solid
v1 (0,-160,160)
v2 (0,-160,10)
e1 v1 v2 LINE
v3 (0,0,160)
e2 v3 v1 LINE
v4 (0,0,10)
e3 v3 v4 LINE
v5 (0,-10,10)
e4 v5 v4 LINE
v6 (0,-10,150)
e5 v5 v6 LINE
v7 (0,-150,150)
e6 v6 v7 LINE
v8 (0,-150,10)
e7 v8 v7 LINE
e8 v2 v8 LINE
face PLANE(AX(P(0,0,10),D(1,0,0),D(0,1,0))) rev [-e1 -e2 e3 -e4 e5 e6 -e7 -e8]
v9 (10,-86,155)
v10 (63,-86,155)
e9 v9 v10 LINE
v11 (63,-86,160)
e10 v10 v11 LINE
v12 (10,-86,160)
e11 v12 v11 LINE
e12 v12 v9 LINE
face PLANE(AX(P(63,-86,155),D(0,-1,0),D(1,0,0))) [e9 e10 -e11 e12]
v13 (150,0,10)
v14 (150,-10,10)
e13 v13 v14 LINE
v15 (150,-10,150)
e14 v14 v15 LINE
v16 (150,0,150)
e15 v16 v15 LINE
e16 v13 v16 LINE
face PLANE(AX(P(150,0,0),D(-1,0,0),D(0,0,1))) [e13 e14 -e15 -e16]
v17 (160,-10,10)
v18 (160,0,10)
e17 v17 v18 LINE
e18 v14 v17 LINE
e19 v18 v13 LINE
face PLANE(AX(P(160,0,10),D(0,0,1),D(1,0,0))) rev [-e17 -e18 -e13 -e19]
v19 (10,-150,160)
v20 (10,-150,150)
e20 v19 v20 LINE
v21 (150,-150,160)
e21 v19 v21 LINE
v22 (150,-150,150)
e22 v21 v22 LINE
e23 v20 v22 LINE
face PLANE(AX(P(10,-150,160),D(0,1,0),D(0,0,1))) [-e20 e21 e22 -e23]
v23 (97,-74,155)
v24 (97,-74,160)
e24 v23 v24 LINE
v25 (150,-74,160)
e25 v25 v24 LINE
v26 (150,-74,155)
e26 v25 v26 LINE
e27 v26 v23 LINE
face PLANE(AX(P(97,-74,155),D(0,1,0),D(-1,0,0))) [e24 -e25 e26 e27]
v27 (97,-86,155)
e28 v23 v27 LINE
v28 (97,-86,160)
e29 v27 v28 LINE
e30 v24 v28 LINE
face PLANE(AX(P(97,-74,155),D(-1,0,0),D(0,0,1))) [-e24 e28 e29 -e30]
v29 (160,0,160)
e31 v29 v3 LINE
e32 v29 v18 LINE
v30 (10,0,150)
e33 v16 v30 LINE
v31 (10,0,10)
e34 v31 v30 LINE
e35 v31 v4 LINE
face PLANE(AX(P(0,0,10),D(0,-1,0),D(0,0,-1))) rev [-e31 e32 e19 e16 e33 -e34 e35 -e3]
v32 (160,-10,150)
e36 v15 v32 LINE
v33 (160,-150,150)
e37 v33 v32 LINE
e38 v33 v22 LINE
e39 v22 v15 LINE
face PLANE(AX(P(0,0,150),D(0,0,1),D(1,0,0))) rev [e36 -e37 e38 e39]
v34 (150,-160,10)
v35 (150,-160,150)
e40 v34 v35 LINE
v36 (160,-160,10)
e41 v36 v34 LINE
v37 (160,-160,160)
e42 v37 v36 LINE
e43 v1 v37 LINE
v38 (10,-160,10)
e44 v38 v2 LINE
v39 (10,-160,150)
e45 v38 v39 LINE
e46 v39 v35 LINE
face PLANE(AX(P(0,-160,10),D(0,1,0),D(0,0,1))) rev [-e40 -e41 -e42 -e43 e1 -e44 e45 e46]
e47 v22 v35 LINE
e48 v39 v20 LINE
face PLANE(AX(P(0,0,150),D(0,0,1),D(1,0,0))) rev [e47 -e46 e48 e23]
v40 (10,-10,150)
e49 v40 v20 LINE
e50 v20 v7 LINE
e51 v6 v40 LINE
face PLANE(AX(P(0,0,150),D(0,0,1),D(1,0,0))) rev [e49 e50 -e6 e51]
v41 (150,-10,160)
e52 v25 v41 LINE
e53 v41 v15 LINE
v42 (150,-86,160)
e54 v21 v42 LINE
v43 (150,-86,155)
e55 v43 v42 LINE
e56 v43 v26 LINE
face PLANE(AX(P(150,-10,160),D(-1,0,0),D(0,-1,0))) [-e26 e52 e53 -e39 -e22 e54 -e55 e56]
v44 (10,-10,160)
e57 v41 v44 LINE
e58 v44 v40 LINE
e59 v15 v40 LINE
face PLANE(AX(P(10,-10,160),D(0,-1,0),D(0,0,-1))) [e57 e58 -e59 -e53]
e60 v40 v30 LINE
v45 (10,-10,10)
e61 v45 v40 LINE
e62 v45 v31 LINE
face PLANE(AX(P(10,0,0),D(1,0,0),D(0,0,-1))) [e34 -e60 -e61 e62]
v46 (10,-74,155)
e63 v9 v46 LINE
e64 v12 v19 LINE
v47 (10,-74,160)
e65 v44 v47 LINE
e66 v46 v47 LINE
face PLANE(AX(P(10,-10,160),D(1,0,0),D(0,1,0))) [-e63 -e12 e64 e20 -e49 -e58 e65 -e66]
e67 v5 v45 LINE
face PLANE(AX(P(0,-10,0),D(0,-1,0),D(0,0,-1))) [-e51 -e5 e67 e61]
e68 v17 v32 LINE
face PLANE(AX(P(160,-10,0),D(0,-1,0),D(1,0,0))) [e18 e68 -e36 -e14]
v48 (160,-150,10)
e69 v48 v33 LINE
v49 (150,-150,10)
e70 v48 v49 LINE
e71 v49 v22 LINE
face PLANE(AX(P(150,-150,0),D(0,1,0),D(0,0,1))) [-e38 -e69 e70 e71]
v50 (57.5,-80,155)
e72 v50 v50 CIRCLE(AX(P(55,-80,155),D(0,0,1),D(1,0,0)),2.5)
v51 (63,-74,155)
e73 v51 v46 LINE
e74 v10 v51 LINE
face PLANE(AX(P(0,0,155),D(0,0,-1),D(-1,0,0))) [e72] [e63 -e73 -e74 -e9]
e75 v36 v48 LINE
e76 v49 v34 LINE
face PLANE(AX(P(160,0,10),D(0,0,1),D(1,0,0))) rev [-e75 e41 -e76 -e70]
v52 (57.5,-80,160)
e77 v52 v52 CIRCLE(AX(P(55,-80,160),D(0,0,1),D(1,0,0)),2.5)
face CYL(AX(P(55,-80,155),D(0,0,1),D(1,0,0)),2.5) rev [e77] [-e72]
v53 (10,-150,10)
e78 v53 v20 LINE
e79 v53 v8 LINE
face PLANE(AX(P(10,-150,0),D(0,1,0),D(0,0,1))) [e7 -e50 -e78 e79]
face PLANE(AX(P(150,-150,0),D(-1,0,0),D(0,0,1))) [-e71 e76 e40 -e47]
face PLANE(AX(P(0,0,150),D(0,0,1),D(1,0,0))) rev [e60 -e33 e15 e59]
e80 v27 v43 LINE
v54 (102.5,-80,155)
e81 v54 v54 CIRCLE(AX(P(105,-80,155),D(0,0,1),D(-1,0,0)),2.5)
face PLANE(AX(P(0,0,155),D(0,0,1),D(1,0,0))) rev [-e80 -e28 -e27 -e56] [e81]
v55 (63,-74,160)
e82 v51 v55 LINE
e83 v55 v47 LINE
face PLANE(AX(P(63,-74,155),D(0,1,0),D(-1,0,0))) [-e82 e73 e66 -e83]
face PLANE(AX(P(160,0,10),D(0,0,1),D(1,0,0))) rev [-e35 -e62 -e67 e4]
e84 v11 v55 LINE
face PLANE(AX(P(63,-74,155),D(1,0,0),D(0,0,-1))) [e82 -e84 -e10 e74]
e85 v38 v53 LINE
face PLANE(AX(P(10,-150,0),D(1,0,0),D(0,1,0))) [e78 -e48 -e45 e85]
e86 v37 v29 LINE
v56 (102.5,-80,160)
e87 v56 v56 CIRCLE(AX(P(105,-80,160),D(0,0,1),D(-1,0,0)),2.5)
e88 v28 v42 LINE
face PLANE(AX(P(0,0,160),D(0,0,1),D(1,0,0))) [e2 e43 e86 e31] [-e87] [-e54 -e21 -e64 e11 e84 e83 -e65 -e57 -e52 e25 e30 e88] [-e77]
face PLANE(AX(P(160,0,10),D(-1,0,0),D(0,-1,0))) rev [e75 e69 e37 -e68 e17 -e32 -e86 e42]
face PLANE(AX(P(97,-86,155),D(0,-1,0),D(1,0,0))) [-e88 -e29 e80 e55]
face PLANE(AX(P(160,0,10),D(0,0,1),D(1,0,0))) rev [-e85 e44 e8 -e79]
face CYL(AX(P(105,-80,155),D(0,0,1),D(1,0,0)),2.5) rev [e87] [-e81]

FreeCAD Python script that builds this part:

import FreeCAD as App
import Part
import Sketcher
Q = App.Units.Quantity

doc = App.newDocument("Part")
body = doc.addObject("PartDesign::Body", "Body")

# Sketch on XY plane
sketch1 = doc.addObject("Sketcher::SketchObject", "Sketch")
body.addObject(sketch1)
sketch1.AttachmentSupport = (doc.XY_Plane, [""])
sketch1.MapMode = "FlatFace"
sketch1.addGeometry(Part.LineSegment(App.Vector(0, 0, 0), App.Vector(0, -160, 0)), False)
sketch1.addGeometry(Part.LineSegment(App.Vector(0, -160, 0), App.Vector(160, -160, 0)), False)
sketch1.addGeometry(Part.LineSegment(App.Vector(160, -160, 0), App.Vector(160, 0, 0)), False)
sketch1.addGeometry(Part.LineSegment(App.Vector(160, 0, 0), App.Vector(0, 0, 0)), False)
sketch1.addGeometry(Part.LineSegment(App.Vector(150, -150, 0), App.Vector(10, -150, 0)), False)
sketch1.addGeometry(Part.LineSegment(App.Vector(10, -150, 0), App.Vector(10, -10, 0)), False)
sketch1.addGeometry(Part.LineSegment(App.Vector(10, -10, 0), App.Vector(150, -10, 0)), False)
sketch1.addGeometry(Part.LineSegment(App.Vector(150, -10, 0), App.Vector(150, -150, 0)), False)
sketch1.addConstraint(Sketcher.Constraint("Coincident", 0, 2, 1, 1))
sketch1.addConstraint(Sketcher.Constraint("Coincident", 1, 2, 2, 1))
sketch1.addConstraint(Sketcher.Constraint("Coincident", 2, 2, 3, 1))
sketch1.addConstraint(Sketcher.Constraint("Coincident", 3, 2, 0, 1))
sketch1.addConstraint(Sketcher.Constraint("Coincident", 4, 2, 5, 1))
sketch1.addConstraint(Sketcher.Constraint("Coincident", 5, 2, 6, 1))
sketch1.addConstraint(Sketcher.Constraint("Coincident", 6, 2, 7, 1))
sketch1.addConstraint(Sketcher.Constraint("Coincident", 7, 2, 4, 1))
sketch1.addConstraint(Sketcher.Constraint("Vertical", 0))
sketch1.addConstraint(Sketcher.Constraint("Horizontal", 1))
sketch1.addConstraint(Sketcher.Constraint("Vertical", 2))
sketch1.addConstraint(Sketcher.Constraint("Horizontal", 3))
sketch1.addConstraint(Sketcher.Constraint("Horizontal", 4))
sketch1.addConstraint(Sketcher.Constraint("Vertical", 5))
sketch1.addConstraint(Sketcher.Constraint("Horizontal", 6))
sketch1.addConstraint(Sketcher.Constraint("Vertical", 7))
sketch1.addConstraint(Sketcher.Constraint("Coincident", 3, 2, -1, 1))
sketch1.addConstraint(Sketcher.Constraint("Equal", 3, 0))
sketch1.addConstraint(Sketcher.Constraint("Equal", 6, 5))
sketch1.addConstraint(Sketcher.Constraint("DistanceX", 1, 1, 1, 2, Q("160 mm")))
sketch1.addConstraint(Sketcher.Constraint("DistanceX", 4, 2, 4, 1, Q("140 mm")))
sketch1.addConstraint(Sketcher.Constraint("DistanceX", -1, 1, 4, 2, Q("10 mm")))
sketch1.addConstraint(Sketcher.Constraint("DistanceY", 4, 2, -1, 1, Q("150 mm")))
pad1 = doc.addObject("PartDesign::Pad", "Pad")
body.addObject(pad1)
pad1.Profile = sketch1
pad1.Length = 10

# Sketch on XY plane
sketch2 = doc.addObject("Sketcher::SketchObject", "Sketch001")
body.addObject(sketch2)
sketch2.AttachmentSupport = (doc.XY_Plane, [""])
sketch2.MapMode = "FlatFace"
sketch2.AttachmentOffset = App.Placement(App.Vector(0, 0, 10), App.Rotation())
sketch2.addGeometry(Part.LineSegment(App.Vector(4, -4, 0), App.Vector(4, -156, 0)), False)
sketch2.addGeometry(Part.LineSegment(App.Vector(4, -156, 0), App.Vector(156, -156, 0)), False)
sketch2.addGeometry(Part.LineSegment(App.Vector(156, -156, 0), App.Vector(156, -4, 0)), False)
sketch2.addGeometry(Part.LineSegment(App.Vector(156, -4, 0), App.Vector(4, -4, 0)), False)
sketch2.addGeometry(Part.LineSegment(App.Vector(154, -154, 0), App.Vector(6, -154, 0)), False)
sketch2.addGeometry(Part.LineSegment(App.Vector(6, -154, 0), App.Vector(6, -6, 0)), False)
sketch2.addGeometry(Part.LineSegment(App.Vector(6, -6, 0), App.Vector(154, -6, 0)), False)
sketch2.addGeometry(Part.LineSegment(App.Vector(154, -6, 0), App.Vector(154, -154, 0)), False)
sketch2.addConstraint(Sketcher.Constraint("Coincident", 0, 2, 1, 1))
sketch2.addConstraint(Sketcher.Constraint("Coincident", 1, 2, 2, 1))
sketch2.addConstraint(Sketcher.Constraint("Coincident", 2, 2, 3, 1))
sketch2.addConstraint(Sketcher.Constraint("Coincident", 3, 2, 0, 1))
sketch2.addConstraint(Sketcher.Constraint("Coincident", 4, 2, 5, 1))
sketch2.addConstraint(Sketcher.Constraint("Coincident", 5, 2, 6, 1))
sketch2.addConstraint(Sketcher.Constraint("Coincident", 6, 2, 7, 1))
sketch2.addConstraint(Sketcher.Constraint("Coincident", 7, 2, 4, 1))
sketch2.addConstraint(Sketcher.Constraint("Vertical", 0))
sketch2.addConstraint(Sketcher.Constraint("Horizontal", 1))
sketch2.addConstraint(Sketcher.Constraint("Vertical", 2))
sketch2.addConstraint(Sketcher.Constraint("Horizontal", 3))
sketch2.addConstraint(Sketcher.Constraint("Horizontal", 4))
sketch2.addConstraint(Sketcher.Constraint("Vertical", 5))
sketch2.addConstraint(Sketcher.Constraint("Horizontal", 6))
sketch2.addConstraint(Sketcher.Constraint("Vertical", 7))
sketch2.addConstraint(Sketcher.Constraint("Equal", 3, 0))
sketch2.addConstraint(Sketcher.Constraint("Equal", 6, 5))
sketch2.addConstraint(Sketcher.Constraint("DistanceX", 1, 1, 1, 2, Q("152 mm")))
sketch2.addConstraint(Sketcher.Constraint("DistanceX", 4, 2, 4, 1, Q("148 mm")))
sketch2.addConstraint(Sketcher.Constraint("DistanceX", -1, 1, 0, 2, Q("4 mm")))
sketch2.addConstraint(Sketcher.Constraint("DistanceY", 0, 2, -1, 1, Q("156 mm")))
sketch2.addConstraint(Sketcher.Constraint("DistanceX", -1, 1, 4, 2, Q("6 mm")))
sketch2.addConstraint(Sketcher.Constraint("DistanceY", 4, 2, -1, 1, Q("154 mm")))
pocket1 = doc.addObject("PartDesign::Pocket", "Pocket")
body.addObject(pocket1)
pocket1.Profile = sketch2
pocket1.Length = 3.5

# Sketch on XY plane
sketch3 = doc.addObject("Sketcher::SketchObject", "Sketch002")
body.addObject(sketch3)
sketch3.AttachmentSupport = (doc.XY_Plane, [""])
sketch3.MapMode = "FlatFace"
sketch3.AttachmentOffset = App.Placement(App.Vector(0, 0, 10), App.Rotation())
sketch3.addGeometry(Part.LineSegment(App.Vector(0, 0, 0), App.Vector(0, -10, 0)), False)
sketch3.addGeometry(Part.LineSegment(App.Vector(0, -10, 0), App.Vector(10, -10, 0)), False)
sketch3.addGeometry(Part.LineSegment(App.Vector(10, -10, 0), App.Vector(10, 0, 0)), False)
sketch3.addGeometry(Part.LineSegment(App.Vector(10, 0, 0), App.Vector(0, 0, 0)), False)
sketch3.addGeometry(Part.LineSegment(App.Vector(150, 0, 0), App.Vector(150, -10, 0)), False)
sketch3.addGeometry(Part.LineSegment(App.Vector(150, -10, 0), App.Vector(160, -10, 0)), False)
sketch3.addGeometry(Part.LineSegment(App.Vector(160, -10, 0), App.Vector(160, 0, 0)), False)
sketch3.addGeometry(Part.LineSegment(App.Vector(160, 0, 0), App.Vector(150, 0, 0)), False)
sketch3.addGeometry(Part.LineSegment(App.Vector(150, -150, 0), App.Vector(150, -160, 0)), False)
sketch3.addGeometry(Part.LineSegment(App.Vector(150, -160, 0), App.Vector(160, -160, 0)), False)
sketch3.addGeometry(Part.LineSegment(App.Vector(160, -160, 0), App.Vector(160, -150, 0)), False)
sketch3.addGeometry(Part.LineSegment(App.Vector(160, -150, 0), App.Vector(150, -150, 0)), False)
sketch3.addGeometry(Part.LineSegment(App.Vector(0, -150, 0), App.Vector(0, -160, 0)), False)
sketch3.addGeometry(Part.LineSegment(App.Vector(0, -160, 0), App.Vector(10, -160, 0)), False)
sketch3.addGeometry(Part.LineSegment(App.Vector(10, -160, 0), App.Vector(10, -150, 0)), False)
sketch3.addGeometry(Part.LineSegment(App.Vector(10, -150, 0), App.Vector(0, -150, 0)), False)
sketch3.addConstraint(Sketcher.Constraint("Coincident", 0, 2, 1, 1))
sketch3.addConstraint(Sketcher.Constraint("Coincident", 1, 2, 2, 1))
sketch3.addConstraint(Sketcher.Constraint("Coincident", 2, 2, 3, 1))
sketch3.addConstraint(Sketcher.Constraint("Coincident", 3, 2, 0, 1))
sketch3.addConstraint(Sketcher.Constraint("Coincident", 4, 2, 5, 1))
sketch3.addConstraint(Sketcher.Constraint("Coincident", 5, 2, 6, 1))
sketch3.addConstraint(Sketcher.Constraint("Coincident", 6, 2, 7, 1))
sketch3.addConstraint(Sketcher.Constraint("Coincident", 7, 2, 4, 1))
sketch3.addConstraint(Sketcher.Constraint("Coincident", 8, 2, 9, 1))
sketch3.addConstraint(Sketcher.Constraint("Coincident", 9, 2, 10, 1))
sketch3.addConstraint(Sketcher.Constraint("Coincident", 10, 2, 11, 1))
sketch3.addConstraint(Sketcher.Constraint("Coincident", 11, 2, 8, 1))
sketch3.addConstraint(Sketcher.Constraint("Coincident", 12, 2, 13, 1))
sketch3.addConstraint(Sketcher.Constraint("Coincident", 13, 2, 14, 1))
sketch3.addConstraint(Sketcher.Constraint("Coincident", 14, 2, 15, 1))
sketch3.addConstraint(Sketcher.Constraint("Coincident", 15, 2, 12, 1))
sketch3.addConstraint(Sketcher.Constraint("Vertical", 0))
sketch3.addConstraint(Sketcher.Constraint("Horizontal", 1))
sketch3.addConstraint(Sketcher.Constraint("Vertical", 2))
sketch3.addConstraint(Sketcher.Constraint("Horizontal", 3))
sketch3.addConstraint(Sketcher.Constraint("Vertical", 4))
sketch3.addConstraint(Sketcher.Constraint("Horizontal", 5))
sketch3.addConstraint(Sketcher.Constraint("Vertical", 6))
sketch3.addConstraint(Sketcher.Constraint("Horizontal", 7))
sketch3.addConstraint(Sketcher.Constraint("Vertical", 8))
sketch3.addConstraint(Sketcher.Constraint("Horizontal", 9))
sketch3.addConstraint(Sketcher.Constraint("Vertical", 10))
sketch3.addConstraint(Sketcher.Constraint("Horizontal", 11))
sketch3.addConstraint(Sketcher.Constraint("Vertical", 12))
sketch3.addConstraint(Sketcher.Constraint("Horizontal", 13))
sketch3.addConstraint(Sketcher.Constraint("Vertical", 14))
sketch3.addConstraint(Sketcher.Constraint("Horizontal", 15))
sketch3.addConstraint(Sketcher.Constraint("Coincident", 3, 2, -1, 1))
sketch3.addConstraint(Sketcher.Constraint("PointOnObject", 6, 2, -1))
sketch3.addConstraint(Sketcher.Constraint("PointOnObject", 12, 2, -2))
sketch3.addConstraint(Sketcher.Constraint("Horizontal", 1, 2, 4, 2))
sketch3.addConstraint(Sketcher.Constraint("Horizontal", 9, 2, 12, 2))
sketch3.addConstraint(Sketcher.Constraint("Horizontal", 11, 2, 14, 2))
sketch3.addConstraint(Sketcher.Constraint("Vertical", 7, 2, 8, 2))
sketch3.addConstraint(Sketcher.Constraint("Vertical", 6, 2, 9, 2))
sketch3.addConstraint(Sketcher.Constraint("Vertical", 2, 2, 13, 2))
sketch3.addConstraint(Sketcher.Constraint("Equal", 3, 5))
sketch3.addConstraint(Sketcher.Constraint("Equal", 15, 0))
sketch3.addConstraint(Sketcher.Constraint("Equal", 6, 8))
sketch3.addConstraint(Sketcher.Constraint("DistanceX", 1, 1, 1, 2, Q("10 mm")))
sketch3.addConstraint(Sketcher.Constraint("DistanceX", -1, 1, 4, 2, Q("150 mm")))
sketch3.addConstraint(Sketcher.Constraint("DistanceY", 8, 2, -1, 1, Q("160 mm")))
pad2 = doc.addObject("PartDesign::Pad", "Pad001")
body.addObject(pad2)
pad2.Profile = sketch3
pad2.Type = "TwoLengths"
pad2.Length = 140
pad2.Length2 = 10

# Sketch on XY plane
sketch4 = doc.addObject("Sketcher::SketchObject", "Sketch003")
body.addObject(sketch4)
sketch4.AttachmentSupport = (doc.XY_Plane, [""])
sketch4.MapMode = "FlatFace"
sketch4.AttachmentOffset = App.Placement(App.Vector(0, 0, 150), App.Rotation())
sketch4.addGeometry(Part.LineSegment(App.Vector(0, 0, 0), App.Vector(0, -160, 0)), False)
sketch4.addGeometry(Part.LineSegment(App.Vector(0, -160, 0), App.Vector(160, -160, 0)), False)
sketch4.addGeometry(Part.LineSegment(App.Vector(160, -160, 0), App.Vector(160, 0, 0)), False)
sketch4.addGeometry(Part.LineSegment(App.Vector(160, 0, 0), App.Vector(0, 0, 0)), False)
sketch4.addGeometry(Part.LineSegment(App.Vector(150, -150, 0), App.Vector(10, -150, 0)), False)
sketch4.addGeometry(Part.LineSegment(App.Vector(10, -150, 0), App.Vector(10, -10, 0)), False)
sketch4.addGeometry(Part.LineSegment(App.Vector(10, -10, 0), App.Vector(150, -10, 0)), False)
sketch4.addGeometry(Part.LineSegment(App.Vector(150, -10, 0), App.Vector(150, -150, 0)), False)
sketch4.addConstraint(Sketcher.Constraint("Coincident", 0, 2, 1, 1))
sketch4.addConstraint(Sketcher.Constraint("Coincident", 1, 2, 2, 1))
sketch4.addConstraint(Sketcher.Constraint("Coincident", 2, 2, 3, 1))
sketch4.addConstraint(Sketcher.Constraint("Coincident", 3, 2, 0, 1))
sketch4.addConstraint(Sketcher.Constraint("Coincident", 4, 2, 5, 1))
sketch4.addConstraint(Sketcher.Constraint("Coincident", 5, 2, 6, 1))
sketch4.addConstraint(Sketcher.Constraint("Coincident", 6, 2, 7, 1))
sketch4.addConstraint(Sketcher.Constraint("Coincident", 7, 2, 4, 1))
sketch4.addConstraint(Sketcher.Constraint("Vertical", 0))
sketch4.addConstraint(Sketcher.Constraint("Horizontal", 1))
sketch4.addConstraint(Sketcher.Constraint("Vertical", 2))
sketch4.addConstraint(Sketcher.Constraint("Horizontal", 3))
sketch4.addConstraint(Sketcher.Constraint("Horizontal", 4))
sketch4.addConstraint(Sketcher.Constraint("Vertical", 5))
sketch4.addConstraint(Sketcher.Constraint("Horizontal", 6))
sketch4.addConstraint(Sketcher.Constraint("Vertical", 7))
sketch4.addConstraint(Sketcher.Constraint("Coincident", 3, 2, -1, 1))
sketch4.addConstraint(Sketcher.Constraint("Equal", 3, 0))
sketch4.addConstraint(Sketcher.Constraint("Equal", 6, 5))
sketch4.addConstraint(Sketcher.Constraint("DistanceX", 1, 1, 1, 2, Q("160 mm")))
sketch4.addConstraint(Sketcher.Constraint("DistanceX", 4, 2, 4, 1, Q("140 mm")))
sketch4.addConstraint(Sketcher.Constraint("DistanceX", -1, 1, 4, 2, Q("10 mm")))
sketch4.addConstraint(Sketcher.Constraint("DistanceY", 4, 2, -1, 1, Q("150 mm")))
pad3 = doc.addObject("PartDesign::Pad", "Pad002")
body.addObject(pad3)
pad3.Profile = sketch4
pad3.Length = 10

# Sketch on XY plane
sketch5 = doc.addObject("Sketcher::SketchObject", "Sketch004")
body.addObject(sketch5)
sketch5.AttachmentSupport = (doc.XY_Plane, [""])
sketch5.MapMode = "FlatFace"
sketch5.AttachmentOffset = App.Placement(App.Vector(0, 0, 160), App.Rotation())
sketch5.addGeometry(Part.LineSegment(App.Vector(0, -74, 0), App.Vector(0, -86, 0)), False)
sketch5.addGeometry(Part.LineSegment(App.Vector(0, -86, 0), App.Vector(63, -86, 0)), False)
sketch5.addGeometry(Part.LineSegment(App.Vector(63, -86, 0), App.Vector(63, -74, 0)), False)
sketch5.addGeometry(Part.LineSegment(App.Vector(63, -74, 0), App.Vector(0, -74, 0)), False)
sketch5.addGeometry(Part.Circle(App.Vector(55, -80, 0), App.Vector(0, 0, 1), 2.5), False)
sketch5.addGeometry(Part.LineSegment(App.Vector(97, -74, 0), App.Vector(97, -86, 0)), False)
sketch5.addGeometry(Part.LineSegment(App.Vector(97, -86, 0), App.Vector(160, -86, 0)), False)
sketch5.addGeometry(Part.LineSegment(App.Vector(160, -86, 0), App.Vector(160, -74, 0)), False)
sketch5.addGeometry(Part.LineSegment(App.Vector(160, -74, 0), App.Vector(97, -74, 0)), False)
sketch5.addGeometry(Part.Circle(App.Vector(105, -80, 0), App.Vector(0, 0, 1), 2.5), False)
sketch5.addConstraint(Sketcher.Constraint("Coincident", 0, 2, 1, 1))
sketch5.addConstraint(Sketcher.Constraint("Coincident", 1, 2, 2, 1))
sketch5.addConstraint(Sketcher.Constraint("Coincident", 2, 2, 3, 1))
sketch5.addConstraint(Sketcher.Constraint("Coincident", 3, 2, 0, 1))
sketch5.addConstraint(Sketcher.Constraint("Coincident", 5, 2, 6, 1))
sketch5.addConstraint(Sketcher.Constraint("Coincident", 6, 2, 7, 1))
sketch5.addConstraint(Sketcher.Constraint("Coincident", 7, 2, 8, 1))
sketch5.addConstraint(Sketcher.Constraint("Coincident", 8, 2, 5, 1))
sketch5.addConstraint(Sketcher.Constraint("Vertical", 0))
sketch5.addConstraint(Sketcher.Constraint("Horizontal", 1))
sketch5.addConstraint(Sketcher.Constraint("Vertical", 2))
sketch5.addConstraint(Sketcher.Constraint("Horizontal", 3))
sketch5.addConstraint(Sketcher.Constraint("Vertical", 5))
sketch5.addConstraint(Sketcher.Constraint("Horizontal", 6))
sketch5.addConstraint(Sketcher.Constraint("Vertical", 7))
sketch5.addConstraint(Sketcher.Constraint("Horizontal", 8))
sketch5.addConstraint(Sketcher.Constraint("Equal", 4, 9))
sketch5.addConstraint(Sketcher.Constraint("PointOnObject", 0, 2, -2))
sketch5.addConstraint(Sketcher.Constraint("Horizontal", 4, 3, 9, 3))
sketch5.addConstraint(Sketcher.Constraint("Horizontal", 1, 2, 5, 2))
sketch5.addConstraint(Sketcher.Constraint("Horizontal", 3, 2, 7, 2))
sketch5.addConstraint(Sketcher.Constraint("Equal", 3, 6))
sketch5.addConstraint(Sketcher.Constraint("Diameter", 4, Q("5 mm")))
sketch5.addConstraint(Sketcher.Constraint("DistanceX", 1, 1, 1, 2, Q("63 mm")))
sketch5.addConstraint(Sketcher.Constraint("DistanceY", 0, 2, 0, 1, Q("12 mm")))
sketch5.addConstraint(Sketcher.Constraint("DistanceX", -1, 1, 4, 3, Q("55 mm")))
sketch5.addConstraint(Sketcher.Constraint("DistanceY", 4, 3, -1, 1, Q("80 mm")))
sketch5.addConstraint(Sketcher.Constraint("DistanceX", -1, 1, 9, 3, Q("105 mm")))
sketch5.addConstraint(Sketcher.Constraint("DistanceY", 0, 2, -1, 1, Q("86 mm")))
sketch5.addConstraint(Sketcher.Constraint("DistanceX", -1, 1, 5, 2, Q("97 mm")))
pad4 = doc.addObject("PartDesign::Pad", "Pad003")
body.addObject(pad4)
pad4.Profile = sketch5
pad4.Length = 5
pad4.Reversed = True

# Sketch on YZ plane
sketch6 = doc.addObject("Sketcher::SketchObject", "Sketch005")
body.addObject(sketch6)
sketch6.AttachmentSupport = (doc.YZ_Plane, [""])
sketch6.MapMode = "FlatFace"
sketch6.addGeometry(Part.LineSegment(App.Vector(0, 0, 0), App.Vector(-160, 0, 0)), False)
sketch6.addGeometry(Part.LineSegment(App.Vector(-160, 0, 0), App.Vector(-160, 10, 0)), False)
sketch6.addGeometry(Part.LineSegment(App.Vector(-160, 10, 0), App.Vector(0, 10, 0)), False)
sketch6.addGeometry(Part.LineSegment(App.Vector(0, 10, 0), App.Vector(0, 0, 0)), False)
sketch6.addConstraint(Sketcher.Constraint("Coincident", 0, 2, 1, 1))
sketch6.addConstraint(Sketcher.Constraint("Coincident", 1, 2, 2, 1))
sketch6.addConstraint(Sketcher.Constraint("Coincident", 2, 2, 3, 1))
sketch6.addConstraint(Sketcher.Constraint("Coincident", 3, 2, 0, 1))
sketch6.addConstraint(Sketcher.Constraint("Horizontal", 0))
sketch6.addConstraint(Sketcher.Constraint("Vertical", 1))
sketch6.addConstraint(Sketcher.Constraint("Horizontal", 2))
sketch6.addConstraint(Sketcher.Constraint("Vertical", 3))
sketch6.addConstraint(Sketcher.Constraint("Coincident", 3, 2, -1, 1))
sketch6.addConstraint(Sketcher.Constraint("DistanceX", 0, 2, 0, 1, Q("160 mm")))
sketch6.addConstraint(Sketcher.Constraint("DistanceY", 1, 1, 1, 2, Q("10 mm")))
pocket2 = doc.addObject("PartDesign::Pocket", "Pocket001")
body.addObject(pocket2)
pocket2.Profile = sketch6
pocket2.Type = "ThroughAll"
pocket2.Reversed = True

doc.recompute()
